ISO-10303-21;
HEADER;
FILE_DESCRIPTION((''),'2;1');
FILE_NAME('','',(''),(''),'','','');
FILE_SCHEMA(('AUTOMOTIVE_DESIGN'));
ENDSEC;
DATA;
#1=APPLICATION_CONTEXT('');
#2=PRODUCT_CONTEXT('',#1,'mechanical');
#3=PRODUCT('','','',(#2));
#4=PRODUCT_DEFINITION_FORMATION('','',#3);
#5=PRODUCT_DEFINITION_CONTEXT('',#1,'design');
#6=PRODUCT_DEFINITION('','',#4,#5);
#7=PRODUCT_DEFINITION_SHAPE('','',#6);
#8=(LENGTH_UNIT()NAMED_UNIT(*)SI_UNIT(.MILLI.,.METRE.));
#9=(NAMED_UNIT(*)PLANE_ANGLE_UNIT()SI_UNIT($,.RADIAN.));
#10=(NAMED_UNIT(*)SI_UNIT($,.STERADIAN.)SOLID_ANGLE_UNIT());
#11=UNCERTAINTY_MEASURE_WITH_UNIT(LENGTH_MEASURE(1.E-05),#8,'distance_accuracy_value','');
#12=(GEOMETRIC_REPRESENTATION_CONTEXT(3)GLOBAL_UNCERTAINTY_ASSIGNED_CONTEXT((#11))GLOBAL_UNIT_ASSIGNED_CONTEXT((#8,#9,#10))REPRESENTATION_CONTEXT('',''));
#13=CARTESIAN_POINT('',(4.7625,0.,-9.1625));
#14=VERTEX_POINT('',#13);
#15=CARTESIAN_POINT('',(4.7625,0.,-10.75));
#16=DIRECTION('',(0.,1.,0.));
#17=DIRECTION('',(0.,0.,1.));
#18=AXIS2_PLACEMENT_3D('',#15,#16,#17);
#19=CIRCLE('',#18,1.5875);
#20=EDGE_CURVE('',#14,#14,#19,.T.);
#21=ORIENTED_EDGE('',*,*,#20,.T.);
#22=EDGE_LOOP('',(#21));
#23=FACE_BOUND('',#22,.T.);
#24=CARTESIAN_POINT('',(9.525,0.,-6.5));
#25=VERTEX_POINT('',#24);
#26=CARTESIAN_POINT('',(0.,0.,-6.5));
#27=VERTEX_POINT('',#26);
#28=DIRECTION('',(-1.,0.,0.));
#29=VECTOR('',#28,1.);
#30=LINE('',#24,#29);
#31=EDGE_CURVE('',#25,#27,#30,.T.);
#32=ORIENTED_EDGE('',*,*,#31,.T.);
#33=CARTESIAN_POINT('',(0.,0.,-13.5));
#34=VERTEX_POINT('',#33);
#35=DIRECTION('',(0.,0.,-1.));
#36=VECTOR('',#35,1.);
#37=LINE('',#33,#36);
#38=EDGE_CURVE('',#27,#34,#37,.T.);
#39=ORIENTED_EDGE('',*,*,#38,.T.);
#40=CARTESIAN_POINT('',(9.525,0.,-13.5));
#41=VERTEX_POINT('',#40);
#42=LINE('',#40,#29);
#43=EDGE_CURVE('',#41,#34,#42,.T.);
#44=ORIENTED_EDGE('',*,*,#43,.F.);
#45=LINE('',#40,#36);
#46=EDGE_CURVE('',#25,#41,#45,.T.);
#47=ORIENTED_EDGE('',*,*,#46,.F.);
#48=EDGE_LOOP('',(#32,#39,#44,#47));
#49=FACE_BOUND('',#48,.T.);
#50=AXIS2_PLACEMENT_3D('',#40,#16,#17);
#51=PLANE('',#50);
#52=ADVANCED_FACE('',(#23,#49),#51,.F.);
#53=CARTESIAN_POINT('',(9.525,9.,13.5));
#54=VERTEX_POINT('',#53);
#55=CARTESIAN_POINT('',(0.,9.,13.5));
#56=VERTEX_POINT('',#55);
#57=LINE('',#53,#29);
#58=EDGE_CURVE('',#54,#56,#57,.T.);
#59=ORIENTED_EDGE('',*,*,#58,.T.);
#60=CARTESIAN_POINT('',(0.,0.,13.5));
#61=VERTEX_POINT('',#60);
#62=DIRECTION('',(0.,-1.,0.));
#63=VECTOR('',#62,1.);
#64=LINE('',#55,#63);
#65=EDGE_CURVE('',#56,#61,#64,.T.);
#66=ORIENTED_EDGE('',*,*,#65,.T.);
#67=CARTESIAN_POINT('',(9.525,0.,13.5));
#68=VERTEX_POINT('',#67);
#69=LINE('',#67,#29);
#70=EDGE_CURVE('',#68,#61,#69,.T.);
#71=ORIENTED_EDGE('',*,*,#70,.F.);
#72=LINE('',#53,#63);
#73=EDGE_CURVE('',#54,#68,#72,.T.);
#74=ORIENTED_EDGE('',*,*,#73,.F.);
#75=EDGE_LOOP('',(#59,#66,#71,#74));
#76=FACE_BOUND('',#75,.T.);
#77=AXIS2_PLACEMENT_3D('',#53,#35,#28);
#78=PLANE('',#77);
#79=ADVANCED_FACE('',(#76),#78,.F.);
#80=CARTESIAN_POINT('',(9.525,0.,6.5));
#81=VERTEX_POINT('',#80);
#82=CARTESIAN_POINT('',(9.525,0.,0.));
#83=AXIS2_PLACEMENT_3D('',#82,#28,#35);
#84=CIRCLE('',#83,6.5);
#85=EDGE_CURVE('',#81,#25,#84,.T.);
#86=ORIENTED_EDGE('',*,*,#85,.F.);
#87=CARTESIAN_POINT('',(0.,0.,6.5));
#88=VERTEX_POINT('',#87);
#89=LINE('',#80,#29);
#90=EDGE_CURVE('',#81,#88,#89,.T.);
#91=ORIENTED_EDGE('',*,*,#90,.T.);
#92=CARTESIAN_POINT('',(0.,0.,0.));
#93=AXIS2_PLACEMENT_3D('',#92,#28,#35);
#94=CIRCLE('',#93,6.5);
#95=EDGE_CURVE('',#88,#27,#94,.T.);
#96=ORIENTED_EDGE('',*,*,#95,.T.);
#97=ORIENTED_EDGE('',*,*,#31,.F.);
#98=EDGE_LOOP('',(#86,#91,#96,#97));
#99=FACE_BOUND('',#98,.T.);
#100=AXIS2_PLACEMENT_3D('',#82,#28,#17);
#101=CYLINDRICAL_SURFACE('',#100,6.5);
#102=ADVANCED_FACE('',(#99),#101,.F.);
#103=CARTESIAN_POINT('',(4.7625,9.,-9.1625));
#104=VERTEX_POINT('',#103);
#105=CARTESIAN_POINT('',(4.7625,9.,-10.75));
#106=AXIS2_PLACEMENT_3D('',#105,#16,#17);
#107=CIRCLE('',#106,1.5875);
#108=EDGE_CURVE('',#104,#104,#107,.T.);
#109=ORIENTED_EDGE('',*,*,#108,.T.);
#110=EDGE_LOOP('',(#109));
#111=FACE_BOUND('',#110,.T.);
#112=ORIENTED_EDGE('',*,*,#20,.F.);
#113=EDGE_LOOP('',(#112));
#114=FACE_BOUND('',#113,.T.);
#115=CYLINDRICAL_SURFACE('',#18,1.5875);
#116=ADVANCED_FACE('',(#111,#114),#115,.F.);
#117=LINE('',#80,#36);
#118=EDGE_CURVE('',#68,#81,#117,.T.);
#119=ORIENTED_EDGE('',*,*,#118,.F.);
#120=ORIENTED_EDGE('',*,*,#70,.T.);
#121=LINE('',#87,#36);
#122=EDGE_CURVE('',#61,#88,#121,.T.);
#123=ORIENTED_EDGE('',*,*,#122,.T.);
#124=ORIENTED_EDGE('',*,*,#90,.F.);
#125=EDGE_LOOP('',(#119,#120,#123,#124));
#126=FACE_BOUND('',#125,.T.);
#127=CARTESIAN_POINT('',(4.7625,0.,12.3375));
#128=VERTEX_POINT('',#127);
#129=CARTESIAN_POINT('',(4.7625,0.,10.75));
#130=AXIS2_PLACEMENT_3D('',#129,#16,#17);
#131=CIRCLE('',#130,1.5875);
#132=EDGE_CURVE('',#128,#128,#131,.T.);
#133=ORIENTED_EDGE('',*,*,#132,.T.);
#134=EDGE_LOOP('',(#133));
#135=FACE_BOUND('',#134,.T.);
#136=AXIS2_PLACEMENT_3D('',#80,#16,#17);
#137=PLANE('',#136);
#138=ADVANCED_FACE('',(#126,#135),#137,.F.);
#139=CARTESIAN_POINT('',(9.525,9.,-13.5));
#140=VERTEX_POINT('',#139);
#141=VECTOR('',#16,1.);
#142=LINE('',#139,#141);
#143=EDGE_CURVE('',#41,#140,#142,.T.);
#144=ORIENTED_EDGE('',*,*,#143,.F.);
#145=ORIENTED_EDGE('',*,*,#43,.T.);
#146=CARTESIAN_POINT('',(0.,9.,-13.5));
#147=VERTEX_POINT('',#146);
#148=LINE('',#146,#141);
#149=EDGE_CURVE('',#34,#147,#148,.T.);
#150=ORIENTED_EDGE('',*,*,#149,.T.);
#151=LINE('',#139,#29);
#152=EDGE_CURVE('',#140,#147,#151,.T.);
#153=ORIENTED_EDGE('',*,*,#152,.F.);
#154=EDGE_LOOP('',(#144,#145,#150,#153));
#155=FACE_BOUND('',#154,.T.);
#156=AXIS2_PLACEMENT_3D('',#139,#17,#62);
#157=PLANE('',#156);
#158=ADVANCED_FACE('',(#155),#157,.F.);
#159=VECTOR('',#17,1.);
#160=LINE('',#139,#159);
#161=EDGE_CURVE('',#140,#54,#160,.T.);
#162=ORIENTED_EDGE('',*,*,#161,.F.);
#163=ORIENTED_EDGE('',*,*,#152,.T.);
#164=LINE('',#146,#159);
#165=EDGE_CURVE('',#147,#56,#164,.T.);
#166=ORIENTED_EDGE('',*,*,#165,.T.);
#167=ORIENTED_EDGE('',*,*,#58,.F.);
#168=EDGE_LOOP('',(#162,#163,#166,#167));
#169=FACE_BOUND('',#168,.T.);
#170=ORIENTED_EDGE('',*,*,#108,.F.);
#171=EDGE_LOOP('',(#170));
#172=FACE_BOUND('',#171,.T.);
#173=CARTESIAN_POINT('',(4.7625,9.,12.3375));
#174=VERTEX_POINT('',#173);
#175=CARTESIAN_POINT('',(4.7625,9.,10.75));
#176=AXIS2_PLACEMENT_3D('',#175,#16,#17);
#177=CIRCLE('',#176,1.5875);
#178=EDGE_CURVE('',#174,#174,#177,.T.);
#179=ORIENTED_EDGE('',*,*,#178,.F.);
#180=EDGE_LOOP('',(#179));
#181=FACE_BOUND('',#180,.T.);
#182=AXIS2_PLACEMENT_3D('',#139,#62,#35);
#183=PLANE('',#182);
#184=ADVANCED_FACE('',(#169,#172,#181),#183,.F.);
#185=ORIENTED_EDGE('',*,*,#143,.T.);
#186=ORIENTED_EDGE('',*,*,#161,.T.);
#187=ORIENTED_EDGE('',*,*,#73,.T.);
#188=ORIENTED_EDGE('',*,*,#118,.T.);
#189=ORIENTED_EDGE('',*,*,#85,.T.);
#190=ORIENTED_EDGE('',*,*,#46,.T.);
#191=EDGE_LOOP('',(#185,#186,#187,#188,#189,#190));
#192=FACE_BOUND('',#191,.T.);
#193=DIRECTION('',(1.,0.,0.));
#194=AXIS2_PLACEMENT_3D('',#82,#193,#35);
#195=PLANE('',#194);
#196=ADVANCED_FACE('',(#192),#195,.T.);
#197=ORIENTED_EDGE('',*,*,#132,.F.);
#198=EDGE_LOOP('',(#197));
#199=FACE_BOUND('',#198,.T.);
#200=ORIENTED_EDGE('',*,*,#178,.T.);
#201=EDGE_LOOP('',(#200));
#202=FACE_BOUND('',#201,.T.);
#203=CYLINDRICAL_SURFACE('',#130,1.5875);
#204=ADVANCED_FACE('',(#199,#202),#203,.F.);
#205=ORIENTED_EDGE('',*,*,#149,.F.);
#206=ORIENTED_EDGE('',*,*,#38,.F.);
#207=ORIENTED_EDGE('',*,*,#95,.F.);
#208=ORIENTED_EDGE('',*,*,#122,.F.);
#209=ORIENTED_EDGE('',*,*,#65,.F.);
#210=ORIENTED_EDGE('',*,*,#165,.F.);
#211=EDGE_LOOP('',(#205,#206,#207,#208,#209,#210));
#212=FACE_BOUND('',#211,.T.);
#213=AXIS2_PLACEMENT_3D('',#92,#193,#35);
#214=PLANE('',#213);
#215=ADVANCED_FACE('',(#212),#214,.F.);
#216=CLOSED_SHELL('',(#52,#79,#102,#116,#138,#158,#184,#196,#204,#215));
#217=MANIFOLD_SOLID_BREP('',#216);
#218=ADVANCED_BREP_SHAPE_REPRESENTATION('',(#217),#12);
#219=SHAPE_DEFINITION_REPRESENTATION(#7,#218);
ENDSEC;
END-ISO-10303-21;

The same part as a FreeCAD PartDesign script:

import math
import FreeCAD as App
import Part
import Sketcher

V = App.Vector
Q = App.Units.Quantity

doc = App.newDocument("Part")
body = doc.addObject("PartDesign::Body", "Body")

sketch1 = body.newObject("Sketcher::SketchObject", "Sketch")
sketch1.AttachmentSupport = (doc.getObject("YZ_Plane"), [""])
sketch1.MapMode = "FlatFace"
sketch1.addGeometry([
    Part.LineSegment(V(0, 13.5, 0), V(0, 6.5, 0)),
    Part.ArcOfCircle(Part.Circle(V(0, 0, 0), V(0, 0, 1), 6.5), math.radians(-90), math.radians(90)),
    Part.LineSegment(V(0, -6.5, 0), V(0, -13.5, 0)),
    Part.LineSegment(V(0, -13.5, 0), V(9, -13.5, 0)),
    Part.LineSegment(V(9, -13.5, 0), V(9, 13.5, 0)),
    Part.LineSegment(V(9, 13.5, 0), V(0, 13.5, 0)),
], False)
sketch1.addConstraint([
    Sketcher.Constraint("Coincident", 0, 2, 1, 2),
    Sketcher.Constraint("Coincident", 1, 1, 2, 1),
    Sketcher.Constraint("Coincident", 2, 2, 3, 1),
    Sketcher.Constraint("Coincident", 3, 2, 4, 1),
    Sketcher.Constraint("Coincident", 4, 2, 5, 1),
    Sketcher.Constraint("Coincident", 5, 2, 0, 1),
    Sketcher.Constraint("Vertical", 0),
    Sketcher.Constraint("Vertical", 2),
    Sketcher.Constraint("Horizontal", 3),
    Sketcher.Constraint("Vertical", 4),
    Sketcher.Constraint("Horizontal", 5),
    Sketcher.Constraint("Coincident", 1, 3, -1, 1),
    Sketcher.Constraint("Symmetric", 2, 2, 5, 2, -1, 1),
    Sketcher.Constraint("PointOnObject", 0, 2, -2),
    Sketcher.Constraint("Radius", 1, Q("6.5 mm")),
    Sketcher.Constraint("DistanceX", 3, 1, 3, 2, Q("9 mm")),
    Sketcher.Constraint("DistanceY", 0, 2, 0, 1, Q("7 mm")),
])
pad1 = body.newObject("PartDesign::Pad", "Pad")
pad1.Profile = sketch1
pad1.Length = 9.525

sketch2 = body.newObject("Sketcher::SketchObject", "Sketch001")
sketch2.AttachmentSupport = (doc.getObject("XZ_Plane"), [""])
sketch2.MapMode = "FlatFace"
sketch2.AttachmentOffset = App.Placement(V(0, 0, -9), App.Rotation())
sketch2.addGeometry([
    Part.Circle(V(4.7625, 10.75, 0), V(0, 0, 1), 1.5875),
    Part.Circle(V(4.7625, -10.75, 0), V(0, 0, 1), 1.5875),
], False)
sketch2.addConstraint([
    Sketcher.Constraint("Equal", 0, 1),
    Sketcher.Constraint("Symmetric", 0, 3, 1, 3, -1),
    Sketcher.Constraint("Diameter", 0, Q("3.175 mm")),
    Sketcher.Constraint("DistanceY", 1, 3, 0, 3, Q("21.5 mm")),
    Sketcher.Constraint("DistanceX", -1, 1, 0, 3, Q("4.7625 mm")),
])
pocket1 = body.newObject("PartDesign::Pocket", "Pocket")
pocket1.Profile = sketch2
pocket1.Type = "ThroughAll"
pocket1.Reversed = True

doc.recompute()
